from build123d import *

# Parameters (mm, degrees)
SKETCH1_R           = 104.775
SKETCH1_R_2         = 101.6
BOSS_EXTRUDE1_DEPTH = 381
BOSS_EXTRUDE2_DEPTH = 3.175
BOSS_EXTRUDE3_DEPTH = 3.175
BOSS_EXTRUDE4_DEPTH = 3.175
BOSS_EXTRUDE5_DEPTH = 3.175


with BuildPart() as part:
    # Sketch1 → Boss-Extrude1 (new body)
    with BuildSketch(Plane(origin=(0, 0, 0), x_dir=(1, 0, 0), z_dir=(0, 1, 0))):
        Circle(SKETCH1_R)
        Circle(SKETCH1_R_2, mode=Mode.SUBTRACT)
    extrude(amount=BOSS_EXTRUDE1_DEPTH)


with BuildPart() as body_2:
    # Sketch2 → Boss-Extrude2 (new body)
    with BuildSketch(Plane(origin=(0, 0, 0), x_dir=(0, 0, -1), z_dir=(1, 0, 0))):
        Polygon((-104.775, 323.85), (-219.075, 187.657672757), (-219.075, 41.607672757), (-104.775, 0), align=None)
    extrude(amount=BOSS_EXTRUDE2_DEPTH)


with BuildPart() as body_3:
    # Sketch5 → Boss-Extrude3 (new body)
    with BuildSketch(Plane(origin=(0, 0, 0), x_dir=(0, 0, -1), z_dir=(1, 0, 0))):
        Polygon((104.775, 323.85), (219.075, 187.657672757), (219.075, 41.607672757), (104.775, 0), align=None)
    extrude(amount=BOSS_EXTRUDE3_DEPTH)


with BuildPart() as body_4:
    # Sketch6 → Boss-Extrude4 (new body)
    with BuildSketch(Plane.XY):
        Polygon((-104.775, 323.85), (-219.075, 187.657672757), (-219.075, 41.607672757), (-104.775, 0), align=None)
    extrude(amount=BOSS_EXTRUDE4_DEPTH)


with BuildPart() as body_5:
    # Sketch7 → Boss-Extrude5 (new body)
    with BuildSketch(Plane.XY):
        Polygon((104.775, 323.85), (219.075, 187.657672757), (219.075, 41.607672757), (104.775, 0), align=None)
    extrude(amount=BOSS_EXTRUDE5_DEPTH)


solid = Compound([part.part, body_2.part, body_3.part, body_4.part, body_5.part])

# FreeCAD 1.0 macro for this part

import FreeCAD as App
import Part
import Sketcher

V = App.Vector
Q = App.Units.Quantity


def add_polygon(sketch, points):
    """Adds a closed chain of lines whose ends are joined by coincident constraints."""
    first, n = sketch.GeometryCount, len(points)
    for a, b in zip(points, points[1:] + points[:1]):
        sketch.addGeometry(Part.LineSegment(App.Vector(*a, 0), App.Vector(*b, 0)), False)
    for i in range(n):
        sketch.addConstraint(Sketcher.Constraint("Coincident", first + i, 2, first + (i + 1) % n, 1))

doc = App.newDocument("Part")
body = doc.addObject("PartDesign::Body", "Body")

# Sketch on XZ plane
sketch1 = doc.addObject("Sketcher::SketchObject", "Sketch")
body.addObject(sketch1)
sketch1.AttachmentSupport = (doc.XZ_Plane, [""])
sketch1.MapMode = "FlatFace"
sketch1.addGeometry(Part.Circle(V(0, 0, 0), V(0, 0, 1), 104.775), False)
sketch1.addGeometry(Part.Circle(V(0, 0, 0), V(0, 0, 1), 101.6), False)
sketch1.addConstraint(Sketcher.Constraint("Coincident", 0, 3, -1, 1))
sketch1.addConstraint(Sketcher.Constraint("Coincident", 1, 3, -1, 1))
sketch1.addConstraint(Sketcher.Constraint("Diameter", 1, Q("8 in")))
sketch1.addConstraint(Sketcher.Constraint("Diameter", 0, Q("8.25 in")))
pad1 = doc.addObject("PartDesign::Pad", "Pad")
body.addObject(pad1)
pad1.Profile = sketch1
pad1.Length = Q("15 in")
pad1.Reversed = True
body2 = doc.addObject("PartDesign::Body", "Body001")

# Sketch on YZ plane
sketch2 = doc.addObject("Sketcher::SketchObject", "Sketch001")
body2.addObject(sketch2)
sketch2.AttachmentSupport = (doc.getObject("YZ_Plane001"), [""])
sketch2.MapMode = "FlatFace"
add_polygon(sketch2, [(323.85, 104.775), (187.657673, 219.075), (41.607673, 219.075), (0, 104.775)])  # lines 0-3
sketch2.addConstraint(Sketcher.Constraint("Horizontal", 1))
sketch2.addConstraint(Sketcher.Constraint("Horizontal", 3))
sketch2.addConstraint(Sketcher.Constraint("PointOnObject", 2, 2, -2))
sketch2.addConstraint(Sketcher.Constraint("Distance", 0, Q("7 in")))
sketch2.addConstraint(Sketcher.Constraint("DistanceX", 1, 2, 1, 1, Q("5.75 in")))
sketch2.addConstraint(Sketcher.Constraint("DistanceX", 3, 1, 3, 2, Q("12.75 in")))
sketch2.addConstraint(Sketcher.Constraint("DistanceY", 2, 2, 1, 2, Q("4.5 in")))
sketch2.addConstraint(Sketcher.Constraint("DistanceY", -1, 1, 0, 2, Q("8.625 in")))
pad2 = doc.addObject("PartDesign::Pad", "Pad001")
body2.addObject(pad2)
pad2.Profile = sketch2
pad2.Length = Q("0.125 in")
body3 = doc.addObject("PartDesign::Body", "Body002")

# Sketch on YZ plane
sketch3 = doc.addObject("Sketcher::SketchObject", "Sketch002")
body3.addObject(sketch3)
sketch3.AttachmentSupport = (doc.getObject("YZ_Plane002"), [""])
sketch3.MapMode = "FlatFace"
add_polygon(sketch3, [(187.657673, -219.075), (323.85, -104.775), (0, -104.775), (41.607673, -219.075)])  # lines 0-3
sketch3.addConstraint(Sketcher.Constraint("Horizontal", 1))
sketch3.addConstraint(Sketcher.Constraint("Horizontal", 3))
sketch3.addConstraint(Sketcher.Constraint("PointOnObject", 1, 2, -2))
sketch3.addConstraint(Sketcher.Constraint("Distance", 0, Q("7 in")))
sketch3.addConstraint(Sketcher.Constraint("DistanceX", 1, 2, 1, 1, Q("12.75 in")))
sketch3.addConstraint(Sketcher.Constraint("DistanceX", 3, 1, 3, 2, Q("5.75 in")))
sketch3.addConstraint(Sketcher.Constraint("DistanceY", 2, 2, 1, 2, Q("4.5 in")))
sketch3.addConstraint(Sketcher.Constraint("DistanceY", 0, 2, -1, 1, Q("4.125 in")))
pad3 = doc.addObject("PartDesign::Pad", "Pad002")
body3.addObject(pad3)
pad3.Profile = sketch3
pad3.Length = Q("0.125 in")
body4 = doc.addObject("PartDesign::Body", "Body003")

# Sketch on XY plane
sketch4 = doc.addObject("Sketcher::SketchObject", "Sketch003")
body4.addObject(sketch4)
sketch4.AttachmentSupport = (doc.getObject("XY_Plane003"), [""])
sketch4.MapMode = "FlatFace"
add_polygon(sketch4, [(-104.775, 323.85), (-219.075, 187.657673), (-219.075, 41.607673), (-104.775, 0)])  # lines 0-3
sketch4.addConstraint(Sketcher.Constraint("Vertical", 1))
sketch4.addConstraint(Sketcher.Constraint("Vertical", 3))
sketch4.addConstraint(Sketcher.Constraint("PointOnObject", 2, 2, -1))
sketch4.addConstraint(Sketcher.Constraint("Distance", 0, Q("7 in")))
sketch4.addConstraint(Sketcher.Constraint("DistanceY", 1, 2, 1, 1, Q("5.75 in")))
sketch4.addConstraint(Sketcher.Constraint("DistanceY", 3, 1, 3, 2, Q("12.75 in")))
sketch4.addConstraint(Sketcher.Constraint("DistanceX", 1, 2, 2, 2, Q("4.5 in")))
sketch4.addConstraint(Sketcher.Constraint("DistanceX", 0, 2, -1, 1, Q("8.625 in")))
pad4 = doc.addObject("PartDesign::Pad", "Pad003")
body4.addObject(pad4)
pad4.Profile = sketch4
pad4.Length = Q("0.125 in")
body5 = doc.addObject("PartDesign::Body", "Body004")

# Sketch on XY plane
sketch5 = doc.addObject("Sketcher::SketchObject", "Sketch004")
body5.addObject(sketch5)
sketch5.AttachmentSupport = (doc.getObject("XY_Plane004"), [""])
sketch5.MapMode = "FlatFace"
add_polygon(sketch5, [(219.075, 187.657673), (104.775, 323.85), (104.775, 0), (219.075, 41.607673)])  # lines 0-3
sketch5.addConstraint(Sketcher.Constraint("Vertical", 1))
sketch5.addConstraint(Sketcher.Constraint("Vertical", 3))
sketch5.addConstraint(Sketcher.Constraint("PointOnObject", 1, 2, -1))
sketch5.addConstraint(Sketcher.Constraint("Distance", 0, Q("7 in")))
sketch5.addConstraint(Sketcher.Constraint("DistanceY", 1, 2, 1, 1, Q("12.75 in")))
sketch5.addConstraint(Sketcher.Constraint("DistanceY", 3, 1, 3, 2, Q("5.75 in")))
sketch5.addConstraint(Sketcher.Constraint("DistanceX", 1, 2, 2, 2, Q("4.5 in")))
sketch5.addConstraint(Sketcher.Constraint("DistanceX", -1, 1, 0, 2, Q("4.125 in")))
pad5 = doc.addObject("PartDesign::Pad", "Pad004")
body5.addObject(pad5)
pad5.Profile = sketch5
pad5.Length = Q("0.125 in")

doc.recompute()
